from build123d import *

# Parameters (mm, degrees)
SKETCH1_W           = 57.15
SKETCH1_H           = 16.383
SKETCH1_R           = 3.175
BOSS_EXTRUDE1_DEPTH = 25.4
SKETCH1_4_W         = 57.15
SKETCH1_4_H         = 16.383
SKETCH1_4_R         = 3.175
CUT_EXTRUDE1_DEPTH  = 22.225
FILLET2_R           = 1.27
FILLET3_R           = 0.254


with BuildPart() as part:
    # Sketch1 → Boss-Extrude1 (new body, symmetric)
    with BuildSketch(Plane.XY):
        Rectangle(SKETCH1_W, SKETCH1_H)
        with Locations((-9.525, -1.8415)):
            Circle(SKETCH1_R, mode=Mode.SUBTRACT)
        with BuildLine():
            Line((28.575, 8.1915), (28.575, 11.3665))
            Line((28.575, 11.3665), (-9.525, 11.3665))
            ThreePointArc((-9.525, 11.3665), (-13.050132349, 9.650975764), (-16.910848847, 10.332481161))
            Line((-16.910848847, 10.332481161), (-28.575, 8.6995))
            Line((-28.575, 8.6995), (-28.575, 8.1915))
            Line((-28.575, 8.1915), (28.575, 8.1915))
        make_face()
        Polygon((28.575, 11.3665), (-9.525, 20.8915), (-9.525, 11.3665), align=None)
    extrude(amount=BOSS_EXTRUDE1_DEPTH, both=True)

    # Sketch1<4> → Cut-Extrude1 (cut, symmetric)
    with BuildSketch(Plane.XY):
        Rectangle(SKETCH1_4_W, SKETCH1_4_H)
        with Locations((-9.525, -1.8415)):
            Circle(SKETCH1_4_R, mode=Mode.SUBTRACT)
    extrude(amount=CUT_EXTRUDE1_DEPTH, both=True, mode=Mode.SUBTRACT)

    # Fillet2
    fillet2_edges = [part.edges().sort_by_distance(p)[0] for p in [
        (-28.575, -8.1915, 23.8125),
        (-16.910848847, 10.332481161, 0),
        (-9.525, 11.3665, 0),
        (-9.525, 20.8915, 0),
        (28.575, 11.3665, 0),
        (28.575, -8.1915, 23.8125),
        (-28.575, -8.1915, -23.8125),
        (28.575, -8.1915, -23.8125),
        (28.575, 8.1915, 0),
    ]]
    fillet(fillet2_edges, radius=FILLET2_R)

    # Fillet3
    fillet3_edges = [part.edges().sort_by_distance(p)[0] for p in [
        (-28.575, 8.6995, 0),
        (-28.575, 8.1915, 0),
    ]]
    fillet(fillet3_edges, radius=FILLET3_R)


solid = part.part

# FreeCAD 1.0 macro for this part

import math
import FreeCAD as App
import Part
import Sketcher
Q = App.Units.Quantity


def edges_at(feature, points):
    """Names of the edges that pass closest to the given points."""
    edges = feature.Shape.Edges
    near = lambda p: min(range(len(edges)), key=lambda i: edges[i].distToShape(Part.Vertex(*p))[0])
    return sorted({f"Edge{near(p) + 1}" for p in points})

doc = App.newDocument("Part")
body = doc.addObject("PartDesign::Body", "Body")

# Sketch on XY plane
sketch1 = body.newObject("Sketcher::SketchObject", "Sketch")
sketch1.AttachmentSupport = (doc.getObject("XY_Plane"), [""])
sketch1.MapMode = "FlatFace"
sketch1.addGeometry(Part.LineSegment(App.Vector(-28.6, -8.2, 0), App.Vector(28.6, -8.2, 0)), False)
sketch1.addGeometry(Part.LineSegment(App.Vector(28.6, -8.2, 0), App.Vector(28.6, 11.4, 0)), False)
sketch1.addGeometry(Part.LineSegment(App.Vector(28.6, 11.4, 0), App.Vector(-9.5, 20.9, 0)), False)
sketch1.addGeometry(Part.LineSegment(App.Vector(-9.5, 20.9, 0), App.Vector(-9.5, 11.4, 0)), False)
sketch1.addGeometry(Part.ArcOfCircle(Part.Circle(App.Vector(-13.9, 15.9, 0), App.Vector(0, 0, 1), 6.4), math.radians(-118), math.radians(-46)), False)
sketch1.addGeometry(Part.LineSegment(App.Vector(-16.9, 10.3, 0), App.Vector(-28.6, 8.7, 0)), False)
sketch1.addGeometry(Part.LineSegment(App.Vector(-28.6, 8.7, 0), App.Vector(-28.6, -8.2, 0)), False)
sketch1.addGeometry(Part.Circle(App.Vector(-9.5, -1.8, 0), App.Vector(0, 0, 1), 3.2), False)
sketch1.addConstraint(Sketcher.Constraint("Coincident", 0, 2, 1, 1))
sketch1.addConstraint(Sketcher.Constraint("Coincident", 1, 2, 2, 1))
sketch1.addConstraint(Sketcher.Constraint("Coincident", 2, 2, 3, 1))
sketch1.addConstraint(Sketcher.Constraint("Coincident", 3, 2, 4, 2))
sketch1.addConstraint(Sketcher.Constraint("Coincident", 4, 1, 5, 1))
sketch1.addConstraint(Sketcher.Constraint("Coincident", 5, 2, 6, 1))
sketch1.addConstraint(Sketcher.Constraint("Coincident", 6, 2, 0, 1))
sketch1.addConstraint(Sketcher.Constraint("Horizontal", 0))
sketch1.addConstraint(Sketcher.Constraint("Vertical", 1))
sketch1.addConstraint(Sketcher.Constraint("Vertical", 3))
sketch1.addConstraint(Sketcher.Constraint("Vertical", 6))
sketch1.addConstraint(Sketcher.Constraint("Horizontal", 1, 2, 3, 2))
sketch1.addConstraint(Sketcher.Constraint("Vertical", 7, 3, 2, 2))
sketch1.addConstraint(Sketcher.Constraint("Diameter", 7, Q("0.25 in")))
sketch1.addConstraint(Sketcher.Constraint("Radius", 4, Q("0.25 in")))
sketch1.addConstraint(Sketcher.Constraint("DistanceX", 0, 1, 0, 2, Q("2.25 in")))
sketch1.addConstraint(Sketcher.Constraint("DistanceY", 1, 1, 1, 2, Q("0.77 in")))
sketch1.addConstraint(Sketcher.Constraint("DistanceX", 7, 3, 0, 2, Q("1.5 in")))
sketch1.addConstraint(Sketcher.Constraint("DistanceY", 3, 2, 3, 1, Q("0.375 in")))
sketch1.addConstraint(Sketcher.Constraint("DistanceY", 6, 2, 6, 1, Q("0.665 in")))
sketch1.addConstraint(Sketcher.Constraint("DistanceY", 0, 2, 7, 3, Q("0.25 in")))
sketch1.addConstraint(Sketcher.Constraint("DistanceX", 7, 3, -1, 1, Q("0.375 in")))
sketch1.addConstraint(Sketcher.Constraint("DistanceY", 7, 3, -1, 1, Q("0.0725 in")))
sketch1.addConstraint(Sketcher.Constraint("DistanceX", 4, 1, -1, 1, Q("16.910849 mm")))
sketch1.addConstraint(Sketcher.Constraint("DistanceY", -1, 1, 4, 1, Q("10.332481 mm")))
pad1 = body.newObject("PartDesign::Pad", "Pad")
pad1.Profile = sketch1
pad1.Length = Q("2 in")
pad1.Midplane = True

# Sketch on XY plane
sketch2 = body.newObject("Sketcher::SketchObject", "Sketch001")
sketch2.AttachmentSupport = (doc.getObject("XY_Plane"), [""])
sketch2.MapMode = "FlatFace"
sketch2.addGeometry(Part.LineSegment(App.Vector(-28.6, 8.2, 0), App.Vector(-28.6, -8.2, 0)), False)
sketch2.addGeometry(Part.LineSegment(App.Vector(-28.6, -8.2, 0), App.Vector(28.6, -8.2, 0)), False)
sketch2.addGeometry(Part.LineSegment(App.Vector(28.6, -8.2, 0), App.Vector(28.6, 8.2, 0)), False)
sketch2.addGeometry(Part.LineSegment(App.Vector(28.6, 8.2, 0), App.Vector(-28.6, 8.2, 0)), False)
sketch2.addGeometry(Part.Circle(App.Vector(-9.5, -1.8, 0), App.Vector(0, 0, 1), 3.2), False)
sketch2.addConstraint(Sketcher.Constraint("Coincident", 0, 2, 1, 1))
sketch2.addConstraint(Sketcher.Constraint("Coincident", 1, 2, 2, 1))
sketch2.addConstraint(Sketcher.Constraint("Coincident", 2, 2, 3, 1))
sketch2.addConstraint(Sketcher.Constraint("Coincident", 3, 2, 0, 1))
sketch2.addConstraint(Sketcher.Constraint("Vertical", 0))
sketch2.addConstraint(Sketcher.Constraint("Horizontal", 1))
sketch2.addConstraint(Sketcher.Constraint("Vertical", 2))
sketch2.addConstraint(Sketcher.Constraint("Horizontal", 3))
sketch2.addConstraint(Sketcher.Constraint("Symmetric", 0, 2, 2, 2, -1, 1))
sketch2.addConstraint(Sketcher.Constraint("Diameter", 4, Q("0.25 in")))
sketch2.addConstraint(Sketcher.Constraint("DistanceX", 1, 1, 1, 2, Q("2.25 in")))
sketch2.addConstraint(Sketcher.Constraint("DistanceX", 4, 3, 1, 2, Q("1.5 in")))
sketch2.addConstraint(Sketcher.Constraint("DistanceY", 0, 2, 0, 1, Q("0.645 in")))
sketch2.addConstraint(Sketcher.Constraint("DistanceY", 0, 2, 4, 3, Q("0.25 in")))
pocket1 = body.newObject("PartDesign::Pocket", "Pocket")
pocket1.Profile = sketch2
pocket1.Length = Q("1.75 in")
pocket1.Midplane = True
doc.recompute()

fillet = body.newObject("PartDesign::Fillet", "Fillet")
fillet.Base = (pocket1, edges_at(pocket1, [
    (-28.575, -8.191, 23.812),
    (-16.911, 10.332, 0),
    (-9.525, 11.367, 0),
    (-9.525, 20.892, 0),
    (28.575, 11.367, 0),
    (28.575, -8.191, 23.812),
    (-28.575, -8.191, -23.812),
    (28.575, -8.191, -23.812),
    (28.575, 8.191, 0),
]))
fillet.Radius = Q("0.05 in")
doc.recompute()

fillet2 = body.newObject("PartDesign::Fillet", "Fillet001")
fillet2.Base = (fillet, edges_at(fillet, [(-28.575, 8.7, 0), (-28.575, 8.191, 0)]))
fillet2.Radius = Q("0.01 in")

doc.recompute()
